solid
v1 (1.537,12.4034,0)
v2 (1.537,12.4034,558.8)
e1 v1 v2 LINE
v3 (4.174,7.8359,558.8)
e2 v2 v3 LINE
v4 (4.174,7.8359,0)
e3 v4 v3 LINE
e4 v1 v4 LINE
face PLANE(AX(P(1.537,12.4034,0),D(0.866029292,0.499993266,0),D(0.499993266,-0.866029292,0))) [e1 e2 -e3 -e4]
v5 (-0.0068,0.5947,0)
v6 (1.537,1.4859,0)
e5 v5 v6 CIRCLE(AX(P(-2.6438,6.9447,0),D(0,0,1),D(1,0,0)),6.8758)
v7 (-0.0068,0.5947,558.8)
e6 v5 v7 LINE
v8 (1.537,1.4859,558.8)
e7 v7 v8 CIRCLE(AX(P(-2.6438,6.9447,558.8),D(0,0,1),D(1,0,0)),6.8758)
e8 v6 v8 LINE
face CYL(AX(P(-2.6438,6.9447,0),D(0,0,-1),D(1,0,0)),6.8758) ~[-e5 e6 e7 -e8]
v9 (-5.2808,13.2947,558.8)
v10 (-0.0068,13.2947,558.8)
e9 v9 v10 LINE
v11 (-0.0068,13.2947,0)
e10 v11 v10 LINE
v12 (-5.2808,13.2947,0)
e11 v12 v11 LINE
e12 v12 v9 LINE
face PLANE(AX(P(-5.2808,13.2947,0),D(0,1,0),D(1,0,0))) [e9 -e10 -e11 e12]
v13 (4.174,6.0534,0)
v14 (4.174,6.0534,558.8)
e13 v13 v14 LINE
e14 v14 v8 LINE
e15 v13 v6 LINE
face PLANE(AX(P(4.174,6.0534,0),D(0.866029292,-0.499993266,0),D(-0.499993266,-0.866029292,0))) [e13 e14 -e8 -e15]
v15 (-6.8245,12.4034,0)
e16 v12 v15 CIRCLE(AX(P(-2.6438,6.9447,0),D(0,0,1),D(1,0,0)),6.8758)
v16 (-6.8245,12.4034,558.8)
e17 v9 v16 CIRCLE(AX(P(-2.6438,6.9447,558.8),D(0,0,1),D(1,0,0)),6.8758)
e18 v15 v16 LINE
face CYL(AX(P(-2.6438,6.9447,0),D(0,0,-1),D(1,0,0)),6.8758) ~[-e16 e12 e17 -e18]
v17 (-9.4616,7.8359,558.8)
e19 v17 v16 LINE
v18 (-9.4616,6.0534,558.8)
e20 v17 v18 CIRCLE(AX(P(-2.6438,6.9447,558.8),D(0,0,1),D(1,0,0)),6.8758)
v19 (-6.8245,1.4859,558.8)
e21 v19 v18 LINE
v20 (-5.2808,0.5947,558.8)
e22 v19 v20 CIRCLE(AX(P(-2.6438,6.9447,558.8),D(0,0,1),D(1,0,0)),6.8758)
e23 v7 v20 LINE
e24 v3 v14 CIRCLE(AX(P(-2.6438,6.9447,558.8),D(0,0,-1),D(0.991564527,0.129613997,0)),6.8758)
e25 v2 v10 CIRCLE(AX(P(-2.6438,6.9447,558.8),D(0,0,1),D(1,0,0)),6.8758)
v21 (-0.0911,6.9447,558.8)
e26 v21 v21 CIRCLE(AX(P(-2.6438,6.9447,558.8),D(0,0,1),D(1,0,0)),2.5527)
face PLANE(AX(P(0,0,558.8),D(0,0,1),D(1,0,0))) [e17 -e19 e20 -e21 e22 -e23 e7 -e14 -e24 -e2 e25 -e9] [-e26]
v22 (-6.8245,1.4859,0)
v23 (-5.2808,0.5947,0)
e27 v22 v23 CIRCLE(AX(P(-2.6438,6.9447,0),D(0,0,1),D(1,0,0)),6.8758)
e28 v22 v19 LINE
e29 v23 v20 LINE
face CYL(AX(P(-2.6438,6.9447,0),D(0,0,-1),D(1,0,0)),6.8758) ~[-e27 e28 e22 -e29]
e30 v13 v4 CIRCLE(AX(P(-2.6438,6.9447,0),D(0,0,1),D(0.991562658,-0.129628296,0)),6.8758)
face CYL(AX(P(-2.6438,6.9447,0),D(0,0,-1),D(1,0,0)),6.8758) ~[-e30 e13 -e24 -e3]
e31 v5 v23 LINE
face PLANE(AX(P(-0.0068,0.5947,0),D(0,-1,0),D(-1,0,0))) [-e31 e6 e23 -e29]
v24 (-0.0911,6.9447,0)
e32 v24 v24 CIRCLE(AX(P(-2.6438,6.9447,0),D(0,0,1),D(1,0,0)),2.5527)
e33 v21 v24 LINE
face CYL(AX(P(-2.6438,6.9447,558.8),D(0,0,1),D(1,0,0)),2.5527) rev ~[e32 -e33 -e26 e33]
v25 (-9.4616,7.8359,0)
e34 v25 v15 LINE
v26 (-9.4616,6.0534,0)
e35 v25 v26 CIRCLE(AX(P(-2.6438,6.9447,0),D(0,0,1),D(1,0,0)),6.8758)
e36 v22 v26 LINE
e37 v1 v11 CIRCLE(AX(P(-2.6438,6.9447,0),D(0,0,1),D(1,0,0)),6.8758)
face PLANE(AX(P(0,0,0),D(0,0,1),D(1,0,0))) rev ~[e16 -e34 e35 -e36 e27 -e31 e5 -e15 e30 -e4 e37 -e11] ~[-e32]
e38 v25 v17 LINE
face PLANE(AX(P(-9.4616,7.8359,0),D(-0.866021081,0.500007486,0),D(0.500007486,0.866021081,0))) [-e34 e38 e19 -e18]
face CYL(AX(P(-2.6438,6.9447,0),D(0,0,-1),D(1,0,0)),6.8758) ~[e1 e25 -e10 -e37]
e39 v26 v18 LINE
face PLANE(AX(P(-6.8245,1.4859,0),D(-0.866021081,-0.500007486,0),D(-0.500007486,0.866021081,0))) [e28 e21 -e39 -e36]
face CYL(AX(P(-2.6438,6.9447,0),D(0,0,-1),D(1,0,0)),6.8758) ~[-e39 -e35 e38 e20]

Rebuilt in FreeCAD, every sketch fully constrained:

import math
import FreeCAD as App
import Part
import Sketcher
Q = App.Units.Quantity

doc = App.newDocument("Part")
body = doc.addObject("PartDesign::Body", "Body")

# Sketch on XY plane
sketch1 = body.newObject("Sketcher::SketchObject", "Sketch")
sketch1.AttachmentSupport = (doc.getObject("XY_Plane"), [""])
sketch1.MapMode = "FlatFace"
sketch1.addGeometry(Part.ArcOfCircle(Part.Circle(App.Vector(-2.6438, 6.9447, 0), App.Vector(0, 0, 1), 6.8758), math.radians(-7.448114), math.radians(7.447287)), False)
sketch1.addGeometry(Part.LineSegment(App.Vector(4.174, 7.8359, 0), App.Vector(1.537, 12.4034, 0)), False)
sketch1.addGeometry(Part.ArcOfCircle(Part.Circle(App.Vector(-2.6438, 6.9447, 0), App.Vector(0, 0, 1), 6.8758), math.radians(52.551618), math.radians(67.448081)), False)
sketch1.addGeometry(Part.LineSegment(App.Vector(-0.0068, 13.2947, 0), App.Vector(-5.2808, 13.2947, 0)), False)
sketch1.addGeometry(Part.ArcOfCircle(Part.Circle(App.Vector(-2.6438, 6.9447, 0), App.Vector(0, 0, 1), 6.8758), math.radians(112.551919), math.radians(127.447721)), False)
sketch1.addGeometry(Part.LineSegment(App.Vector(-6.8245, 12.4034, 0), App.Vector(-9.4616, 7.8359, 0)), False)
sketch1.addGeometry(Part.ArcOfCircle(Part.Circle(App.Vector(-2.6438, 6.9447, 0), App.Vector(0, 0, 1), 6.8758), math.radians(172.552713), math.radians(187.448114)), False)
sketch1.addGeometry(Part.LineSegment(App.Vector(-9.4616, 6.0534, 0), App.Vector(-6.8245, 1.4859, 0)), False)
sketch1.addGeometry(Part.ArcOfCircle(Part.Circle(App.Vector(-2.6438, 6.9447, 0), App.Vector(0, 0, 1), 6.8758), math.radians(-127.447214), math.radians(-112.551919)), False)
sketch1.addGeometry(Part.LineSegment(App.Vector(-5.2808, 0.5947, 0), App.Vector(-0.0068, 0.5947, 0)), False)
sketch1.addGeometry(Part.ArcOfCircle(Part.Circle(App.Vector(-2.6438, 6.9447, 0), App.Vector(0, 0, 1), 6.8758), math.radians(-67.448081), math.radians(-52.552124)), False)
sketch1.addGeometry(Part.LineSegment(App.Vector(1.537, 1.4859, 0), App.Vector(4.174, 6.0534, 0)), False)
sketch1.addConstraint(Sketcher.Constraint("Coincident", 0, 2, 1, 1))
sketch1.addConstraint(Sketcher.Constraint("Coincident", 1, 2, 2, 1))
sketch1.addConstraint(Sketcher.Constraint("Coincident", 2, 2, 3, 1))
sketch1.addConstraint(Sketcher.Constraint("Coincident", 3, 2, 4, 1))
sketch1.addConstraint(Sketcher.Constraint("Coincident", 4, 2, 5, 1))
sketch1.addConstraint(Sketcher.Constraint("Coincident", 5, 2, 6, 1))
sketch1.addConstraint(Sketcher.Constraint("Coincident", 6, 2, 7, 1))
sketch1.addConstraint(Sketcher.Constraint("Coincident", 7, 2, 8, 1))
sketch1.addConstraint(Sketcher.Constraint("Coincident", 8, 2, 9, 1))
sketch1.addConstraint(Sketcher.Constraint("Coincident", 9, 2, 10, 1))
sketch1.addConstraint(Sketcher.Constraint("Coincident", 10, 2, 11, 1))
sketch1.addConstraint(Sketcher.Constraint("Coincident", 11, 2, 0, 1))
sketch1.addConstraint(Sketcher.Constraint("Horizontal", 3))
sketch1.addConstraint(Sketcher.Constraint("Horizontal", 9))
sketch1.addConstraint(Sketcher.Constraint("Coincident", 2, 3, 0, 3))
sketch1.addConstraint(Sketcher.Constraint("Coincident", 4, 3, 0, 3))
sketch1.addConstraint(Sketcher.Constraint("Coincident", 6, 3, 0, 3))
sketch1.addConstraint(Sketcher.Constraint("Coincident", 8, 3, 0, 3))
sketch1.addConstraint(Sketcher.Constraint("Coincident", 10, 3, 0, 3))
sketch1.addConstraint(Sketcher.Constraint("Equal", 0, 2))
sketch1.addConstraint(Sketcher.Constraint("Equal", 2, 4))
sketch1.addConstraint(Sketcher.Constraint("Equal", 4, 6))
sketch1.addConstraint(Sketcher.Constraint("Equal", 6, 8))
sketch1.addConstraint(Sketcher.Constraint("Equal", 8, 10))
sketch1.addConstraint(Sketcher.Constraint("Parallel", 1, 7))
sketch1.addConstraint(Sketcher.Constraint("Parallel", 5, 11))
sketch1.addConstraint(Sketcher.Constraint("Horizontal", 1, 2, 4, 2))
sketch1.addConstraint(Sketcher.Constraint("Horizontal", 0, 2, 5, 2))
sketch1.addConstraint(Sketcher.Constraint("Horizontal", 7, 2, 10, 2))
sketch1.addConstraint(Sketcher.Constraint("Vertical", 5, 2, 6, 2))
sketch1.addConstraint(Sketcher.Constraint("Vertical", 3, 2, 8, 2))
sketch1.addConstraint(Sketcher.Constraint("Radius", 0, Q("0.2707 in")))
sketch1.addConstraint(Sketcher.Constraint("Angle", 1, Q("119.9996 deg")))
sketch1.addConstraint(Sketcher.Constraint("DistanceY", 0, 3, 2, 2, Q("0.25 in")))
sketch1.addConstraint(Sketcher.Constraint("DistanceY", 10, 2, 0, 2, Q("0.25 in")))
sketch1.addConstraint(Sketcher.Constraint("DistanceY", -1, 1, 0, 2, Q("0.3085 in")))
sketch1.addConstraint(Sketcher.Constraint("DistanceX", -1, 1, 1, 2, Q("0.0605 in")))
pad1 = body.newObject("PartDesign::Pad", "Pad")
pad1.Profile = sketch1
pad1.Length = Q("22 in")

# Sketch on XY plane
sketch2 = body.newObject("Sketcher::SketchObject", "Sketch001")
sketch2.AttachmentSupport = (doc.getObject("XY_Plane"), [""])
sketch2.MapMode = "FlatFace"
sketch2.AttachmentOffset = App.Placement(App.Vector(0, 0, 22 * 25.4), App.Rotation())
sketch2.addGeometry(Part.Circle(App.Vector(-2.6438, 6.9447, 0), App.Vector(0, 0, 1), 2.5527), False)
sketch2.addConstraint(Sketcher.Constraint("Diameter", 0, Q("0.201 in")))
sketch2.addConstraint(Sketcher.Constraint("DistanceX", 0, 3, -1, 1, Q("2.6438 mm")))
sketch2.addConstraint(Sketcher.Constraint("DistanceY", -1, 1, 0, 3, Q("6.9447 mm")))
pocket1 = body.newObject("PartDesign::Pocket", "Pocket")
pocket1.Profile = sketch2
pocket1.Length = Q("22 in")

doc.recompute()
